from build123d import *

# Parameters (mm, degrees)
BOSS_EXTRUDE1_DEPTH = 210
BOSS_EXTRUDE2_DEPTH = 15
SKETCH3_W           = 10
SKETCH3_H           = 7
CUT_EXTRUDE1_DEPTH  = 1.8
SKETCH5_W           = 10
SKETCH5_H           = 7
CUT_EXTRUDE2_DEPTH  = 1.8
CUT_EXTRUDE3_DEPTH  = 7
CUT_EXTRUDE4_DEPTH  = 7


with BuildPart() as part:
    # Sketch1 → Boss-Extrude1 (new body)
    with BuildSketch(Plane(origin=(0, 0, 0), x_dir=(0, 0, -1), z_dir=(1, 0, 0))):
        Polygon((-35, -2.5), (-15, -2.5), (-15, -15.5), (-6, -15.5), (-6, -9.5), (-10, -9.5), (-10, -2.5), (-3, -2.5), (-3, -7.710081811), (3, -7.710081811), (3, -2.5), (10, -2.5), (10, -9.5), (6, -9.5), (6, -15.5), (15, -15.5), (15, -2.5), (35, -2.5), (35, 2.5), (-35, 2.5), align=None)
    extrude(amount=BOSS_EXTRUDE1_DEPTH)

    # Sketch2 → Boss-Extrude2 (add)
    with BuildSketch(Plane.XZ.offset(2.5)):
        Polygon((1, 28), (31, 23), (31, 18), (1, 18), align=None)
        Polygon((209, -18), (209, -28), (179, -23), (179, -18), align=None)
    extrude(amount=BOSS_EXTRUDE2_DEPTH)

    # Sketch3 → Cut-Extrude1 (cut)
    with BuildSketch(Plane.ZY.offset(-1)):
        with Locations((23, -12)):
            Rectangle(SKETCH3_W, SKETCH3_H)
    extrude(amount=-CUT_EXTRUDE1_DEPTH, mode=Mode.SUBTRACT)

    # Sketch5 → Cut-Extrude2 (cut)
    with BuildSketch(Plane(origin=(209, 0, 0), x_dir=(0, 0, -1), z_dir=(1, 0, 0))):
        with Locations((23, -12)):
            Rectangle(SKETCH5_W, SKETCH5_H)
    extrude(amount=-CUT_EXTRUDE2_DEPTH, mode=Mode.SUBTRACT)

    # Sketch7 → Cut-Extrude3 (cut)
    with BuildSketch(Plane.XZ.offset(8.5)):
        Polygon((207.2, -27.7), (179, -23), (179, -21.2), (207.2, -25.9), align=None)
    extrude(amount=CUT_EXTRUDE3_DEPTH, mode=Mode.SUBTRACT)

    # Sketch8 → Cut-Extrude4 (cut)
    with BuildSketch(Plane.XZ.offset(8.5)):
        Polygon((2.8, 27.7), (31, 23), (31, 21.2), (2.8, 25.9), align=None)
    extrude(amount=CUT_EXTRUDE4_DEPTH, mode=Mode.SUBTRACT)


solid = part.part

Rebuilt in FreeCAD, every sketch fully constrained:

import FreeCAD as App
import Part
import Sketcher

doc = App.newDocument("Part")
body = doc.addObject("PartDesign::Body", "Body")

# Sketch on YZ plane
sketch1 = body.newObject("Sketcher::SketchObject", "Sketch")
sketch1.AttachmentSupport = (doc.getObject("YZ_Plane"), [""])
sketch1.MapMode = "FlatFace"
sketch1.addGeometry([
    Part.LineSegment(App.Vector(-2.5, 35, 0), App.Vector(-2.5, 15, 0)),  # 0
    Part.LineSegment(App.Vector(-2.5, 15, 0), App.Vector(-15.5, 15, 0)),  # 1
    Part.LineSegment(App.Vector(-15.5, 15, 0), App.Vector(-15.5, 6, 0)),  # 2
    Part.LineSegment(App.Vector(-15.5, 6, 0), App.Vector(-9.5, 6, 0)),  # 3
    Part.LineSegment(App.Vector(-9.5, 6, 0), App.Vector(-9.5, 10, 0)),  # 4
    Part.LineSegment(App.Vector(-9.5, 10, 0), App.Vector(-2.5, 10, 0)),  # 5
    Part.LineSegment(App.Vector(-2.5, 10, 0), App.Vector(-2.5, 3, 0)),  # 6
    Part.LineSegment(App.Vector(-2.5, 3, 0), App.Vector(-7.7, 3, 0)),  # 7
    Part.LineSegment(App.Vector(-7.7, 3, 0), App.Vector(-7.7, -3, 0)),  # 8
    Part.LineSegment(App.Vector(-7.7, -3, 0), App.Vector(-2.5, -3, 0)),  # 9
    Part.LineSegment(App.Vector(-2.5, -3, 0), App.Vector(-2.5, -10, 0)),  # 10
    Part.LineSegment(App.Vector(-2.5, -10, 0), App.Vector(-9.5, -10, 0)),  # 11
    Part.LineSegment(App.Vector(-9.5, -10, 0), App.Vector(-9.5, -6, 0)),  # 12
    Part.LineSegment(App.Vector(-9.5, -6, 0), App.Vector(-15.5, -6, 0)),  # 13
    Part.LineSegment(App.Vector(-15.5, -6, 0), App.Vector(-15.5, -15, 0)),  # 14
    Part.LineSegment(App.Vector(-15.5, -15, 0), App.Vector(-2.5, -15, 0)),  # 15
    Part.LineSegment(App.Vector(-2.5, -15, 0), App.Vector(-2.5, -35, 0)),  # 16
    Part.LineSegment(App.Vector(-2.5, -35, 0), App.Vector(2.5, -35, 0)),  # 17
    Part.LineSegment(App.Vector(2.5, -35, 0), App.Vector(2.5, 35, 0)),  # 18
    Part.LineSegment(App.Vector(2.5, 35, 0), App.Vector(-2.5, 35, 0)),  # 19
], False)
sketch1.addConstraint([
    Sketcher.Constraint("Coincident", 0, 2, 1, 1),
    Sketcher.Constraint("Coincident", 1, 2, 2, 1),
    Sketcher.Constraint("Coincident", 2, 2, 3, 1),
    Sketcher.Constraint("Coincident", 3, 2, 4, 1),
    Sketcher.Constraint("Coincident", 4, 2, 5, 1),
    Sketcher.Constraint("Coincident", 5, 2, 6, 1),
    Sketcher.Constraint("Coincident", 6, 2, 7, 1),
    Sketcher.Constraint("Coincident", 7, 2, 8, 1),
    Sketcher.Constraint("Coincident", 8, 2, 9, 1),
    Sketcher.Constraint("Coincident", 9, 2, 10, 1),
    Sketcher.Constraint("Coincident", 10, 2, 11, 1),
    Sketcher.Constraint("Coincident", 11, 2, 12, 1),
    Sketcher.Constraint("Coincident", 12, 2, 13, 1),
    Sketcher.Constraint("Coincident", 13, 2, 14, 1),
    Sketcher.Constraint("Coincident", 14, 2, 15, 1),
    Sketcher.Constraint("Coincident", 15, 2, 16, 1),
    Sketcher.Constraint("Coincident", 16, 2, 17, 1),
    Sketcher.Constraint("Coincident", 17, 2, 18, 1),
    Sketcher.Constraint("Coincident", 18, 2, 19, 1),
    Sketcher.Constraint("Coincident", 19, 2, 0, 1),
    Sketcher.Constraint("Vertical", 0),
    Sketcher.Constraint("Horizontal", 1),
    Sketcher.Constraint("Vertical", 2),
    Sketcher.Constraint("Horizontal", 3),
    Sketcher.Constraint("Vertical", 4),
    Sketcher.Constraint("Horizontal", 5),
    Sketcher.Constraint("Vertical", 6),
    Sketcher.Constraint("Horizontal", 7),
    Sketcher.Constraint("Vertical", 8),
    Sketcher.Constraint("Horizontal", 9),
    Sketcher.Constraint("Vertical", 10),
    Sketcher.Constraint("Horizontal", 11),
    Sketcher.Constraint("Vertical", 12),
    Sketcher.Constraint("Horizontal", 13),
    Sketcher.Constraint("Vertical", 14),
    Sketcher.Constraint("Horizontal", 15),
    Sketcher.Constraint("Vertical", 16),
    Sketcher.Constraint("Horizontal", 17),
    Sketcher.Constraint("Vertical", 18),
    Sketcher.Constraint("Horizontal", 19),
    Sketcher.Constraint("Symmetric", 16, 2, 18, 2, -1, 1),
    Sketcher.Constraint("Symmetric", 6, 2, 9, 2, -1),
    Sketcher.Constraint("Symmetric", 4, 2, 11, 2, -1),
    Sketcher.Constraint("Symmetric", 2, 2, 13, 2, -1),
    Sketcher.Constraint("Symmetric", 0, 2, 15, 2, -1),
    Sketcher.Constraint("Vertical", 0, 2, 5, 2),
    Sketcher.Constraint("Equal", 11, 6),
    Sketcher.Constraint("Equal", 13, 8),
    Sketcher.Constraint("DistanceX", 1, 2, 1, 1, 13.0),
    Sketcher.Constraint("DistanceX", 3, 1, 3, 2, 6.0),
    Sketcher.Constraint("DistanceX", 17, 1, 17, 2, 5.0),
    Sketcher.Constraint("DistanceY", 0, 2, 0, 1, 20.0),
    Sketcher.Constraint("DistanceY", 2, 2, 2, 1, 9.0),
    Sketcher.Constraint("DistanceY", 4, 1, 4, 2, 4.0),
    Sketcher.Constraint("DistanceX", 7, 2, 7, 1, 5.210082),
])
pad1 = body.newObject("PartDesign::Pad", "Pad")
pad1.Profile = sketch1
pad1.Length = 210

# Sketch on XZ plane
sketch2 = body.newObject("Sketcher::SketchObject", "Sketch001")
sketch2.AttachmentSupport = (doc.getObject("XZ_Plane"), [""])
sketch2.MapMode = "FlatFace"
sketch2.AttachmentOffset = App.Placement(App.Vector(0, 0, 2.5), App.Rotation())
sketch2.addGeometry([
    Part.LineSegment(App.Vector(31, 23, 0), App.Vector(1, 28, 0)),  # 0
    Part.LineSegment(App.Vector(1, 28, 0), App.Vector(1, 18, 0)),  # 1
    Part.LineSegment(App.Vector(1, 18, 0), App.Vector(31, 18, 0)),  # 2
    Part.LineSegment(App.Vector(31, 18, 0), App.Vector(31, 23, 0)),  # 3
    Part.LineSegment(App.Vector(209, -28, 0), App.Vector(209, -18, 0)),  # 4
    Part.LineSegment(App.Vector(209, -18, 0), App.Vector(179, -18, 0)),  # 5
    Part.LineSegment(App.Vector(179, -18, 0), App.Vector(179, -23, 0)),  # 6
    Part.LineSegment(App.Vector(179, -23, 0), App.Vector(209, -28, 0)),  # 7
], False)
sketch2.addConstraint([
    Sketcher.Constraint("Coincident", 0, 2, 1, 1),
    Sketcher.Constraint("Coincident", 1, 2, 2, 1),
    Sketcher.Constraint("Coincident", 2, 2, 3, 1),
    Sketcher.Constraint("Coincident", 3, 2, 0, 1),
    Sketcher.Constraint("Coincident", 4, 2, 5, 1),
    Sketcher.Constraint("Coincident", 5, 2, 6, 1),
    Sketcher.Constraint("Coincident", 6, 2, 7, 1),
    Sketcher.Constraint("Coincident", 7, 2, 4, 1),
    Sketcher.Constraint("Vertical", 1),
    Sketcher.Constraint("Horizontal", 2),
    Sketcher.Constraint("Vertical", 3),
    Sketcher.Constraint("Vertical", 4),
    Sketcher.Constraint("Horizontal", 5),
    Sketcher.Constraint("Vertical", 6),
    Sketcher.Constraint("Parallel", 0, 7),
    Sketcher.Constraint("Equal", 2, 5),
    Sketcher.Constraint("Equal", 1, 4),
    Sketcher.Constraint("DistanceX", 2, 1, 2, 2, 30.0),
    Sketcher.Constraint("DistanceY", 1, 2, 1, 1, 10.0),
    Sketcher.Constraint("DistanceY", 3, 1, 3, 2, 5.0),
    Sketcher.Constraint("DistanceX", -1, 1, 0, 2, 1.0),
    Sketcher.Constraint("DistanceY", -1, 1, 0, 2, 28.0),
    Sketcher.Constraint("DistanceX", -1, 1, 4, 2, 209.0),
    Sketcher.Constraint("DistanceY", 4, 2, -1, 1, 18.0),
])
pad2 = body.newObject("PartDesign::Pad", "Pad001")
pad2.Profile = sketch2
pad2.Length = 15

# Sketch on YZ plane
sketch3 = body.newObject("Sketcher::SketchObject", "Sketch002")
sketch3.AttachmentSupport = (doc.getObject("YZ_Plane"), [""])
sketch3.MapMode = "FlatFace"
sketch3.AttachmentOffset = App.Placement(App.Vector(0, 0, 1), App.Rotation())
sketch3.addGeometry([
    Part.LineSegment(App.Vector(-8, 18, 0), App.Vector(-16, 18, 0)),
    Part.LineSegment(App.Vector(-16, 18, 0), App.Vector(-16, 28, 0)),
    Part.LineSegment(App.Vector(-16, 28, 0), App.Vector(-8, 28, 0)),
    Part.LineSegment(App.Vector(-8, 28, 0), App.Vector(-8, 18, 0)),
], False)
sketch3.addConstraint([
    Sketcher.Constraint("Coincident", 0, 2, 1, 1),
    Sketcher.Constraint("Coincident", 1, 2, 2, 1),
    Sketcher.Constraint("Coincident", 2, 2, 3, 1),
    Sketcher.Constraint("Coincident", 3, 2, 0, 1),
    Sketcher.Constraint("Horizontal", 0),
    Sketcher.Constraint("Vertical", 1),
    Sketcher.Constraint("Horizontal", 2),
    Sketcher.Constraint("Vertical", 3),
    Sketcher.Constraint("DistanceX", 0, 2, 0, 1, 7.0),
    Sketcher.Constraint("DistanceY", 1, 1, 1, 2, 10.0),
    Sketcher.Constraint("DistanceY", -1, 1, 0, 2, 18.0),
    Sketcher.Constraint("DistanceX", 0, 2, -1, 1, 15.5),
])
pocket1 = body.newObject("PartDesign::Pocket", "Pocket")
pocket1.Profile = sketch3
pocket1.Length = 1.8
pocket1.Reversed = True

# Sketch on YZ plane
sketch4 = body.newObject("Sketcher::SketchObject", "Sketch003")
sketch4.AttachmentSupport = (doc.getObject("YZ_Plane"), [""])
sketch4.MapMode = "FlatFace"
sketch4.AttachmentOffset = App.Placement(App.Vector(0, 0, 209), App.Rotation())
sketch4.addGeometry([
    Part.LineSegment(App.Vector(-8, -18, 0), App.Vector(-16, -18, 0)),
    Part.LineSegment(App.Vector(-16, -18, 0), App.Vector(-16, -28, 0)),
    Part.LineSegment(App.Vector(-16, -28, 0), App.Vector(-8, -28, 0)),
    Part.LineSegment(App.Vector(-8, -28, 0), App.Vector(-8, -18, 0)),
], False)
sketch4.addConstraint([
    Sketcher.Constraint("Coincident", 0, 2, 1, 1),
    Sketcher.Constraint("Coincident", 1, 2, 2, 1),
    Sketcher.Constraint("Coincident", 2, 2, 3, 1),
    Sketcher.Constraint("Coincident", 3, 2, 0, 1),
    Sketcher.Constraint("Horizontal", 0),
    Sketcher.Constraint("Vertical", 1),
    Sketcher.Constraint("Horizontal", 2),
    Sketcher.Constraint("Vertical", 3),
    Sketcher.Constraint("DistanceX", 0, 2, 0, 1, 7.0),
    Sketcher.Constraint("DistanceY", 1, 2, 1, 1, 10.0),
    Sketcher.Constraint("DistanceY", 0, 2, -1, 1, 18.0),
    Sketcher.Constraint("DistanceX", 0, 2, -1, 1, 15.5),
])
pocket2 = body.newObject("PartDesign::Pocket", "Pocket001")
pocket2.Profile = sketch4
pocket2.Length = 1.8

# Sketch on XZ plane
sketch5 = body.newObject("Sketcher::SketchObject", "Sketch004")
sketch5.AttachmentSupport = (doc.getObject("XZ_Plane"), [""])
sketch5.MapMode = "FlatFace"
sketch5.AttachmentOffset = App.Placement(App.Vector(0, 0, 8.5), App.Rotation())
sketch5.addGeometry([
    Part.LineSegment(App.Vector(179, -23, 0), App.Vector(207.2, -27.7, 0)),
    Part.LineSegment(App.Vector(207.2, -27.7, 0), App.Vector(207.2, -25.9, 0)),
    Part.LineSegment(App.Vector(207.2, -25.9, 0), App.Vector(179, -21.2, 0)),
    Part.LineSegment(App.Vector(179, -21.2, 0), App.Vector(179, -23, 0)),
], False)
sketch5.addConstraint([
    Sketcher.Constraint("Coincident", 0, 2, 1, 1),
    Sketcher.Constraint("Coincident", 1, 2, 2, 1),
    Sketcher.Constraint("Coincident", 2, 2, 3, 1),
    Sketcher.Constraint("Coincident", 3, 2, 0, 1),
    Sketcher.Constraint("Vertical", 1),
    Sketcher.Constraint("Vertical", 3),
    Sketcher.Constraint("Parallel", 0, 2),
    Sketcher.Constraint("DistanceY", 1, 1, 1, 2, 1.8),
    Sketcher.Constraint("DistanceX", -1, 1, 2, 2, 179.0),
    Sketcher.Constraint("DistanceY", 3, 2, -1, 1, 23.0),
    Sketcher.Constraint("DistanceX", -1, 1, 0, 2, 207.2),
    Sketcher.Constraint("DistanceY", 0, 2, -1, 1, 27.7),
])
pocket3 = body.newObject("PartDesign::Pocket", "Pocket002")
pocket3.Profile = sketch5
pocket3.Length = 7
pocket3.Reversed = True

# Sketch on XZ plane
sketch6 = body.newObject("Sketcher::SketchObject", "Sketch005")
sketch6.AttachmentSupport = (doc.getObject("XZ_Plane"), [""])
sketch6.MapMode = "FlatFace"
sketch6.AttachmentOffset = App.Placement(App.Vector(0, 0, 8.5), App.Rotation())
sketch6.addGeometry([
    Part.LineSegment(App.Vector(31, 23, 0), App.Vector(2.8, 27.7, 0)),
    Part.LineSegment(App.Vector(2.8, 27.7, 0), App.Vector(2.8, 25.9, 0)),
    Part.LineSegment(App.Vector(2.8, 25.9, 0), App.Vector(31, 21.2, 0)),
    Part.LineSegment(App.Vector(31, 21.2, 0), App.Vector(31, 23, 0)),
], False)
sketch6.addConstraint([
    Sketcher.Constraint("Coincident", 0, 2, 1, 1),
    Sketcher.Constraint("Coincident", 1, 2, 2, 1),
    Sketcher.Constraint("Coincident", 2, 2, 3, 1),
    Sketcher.Constraint("Coincident", 3, 2, 0, 1),
    Sketcher.Constraint("Vertical", 1),
    Sketcher.Constraint("Vertical", 3),
    Sketcher.Constraint("Parallel", 0, 2),
    Sketcher.Constraint("DistanceY", 1, 2, 1, 1, 1.8),
    Sketcher.Constraint("DistanceX", -1, 1, 2, 2, 31.0),
    Sketcher.Constraint("DistanceY", -1, 1, 3, 2, 23.0),
    Sketcher.Constraint("DistanceX", -1, 1, 0, 2, 2.8),
    Sketcher.Constraint("DistanceY", -1, 1, 0, 2, 27.7),
])
pocket4 = body.newObject("PartDesign::Pocket", "Pocket003")
pocket4.Profile = sketch6
pocket4.Length = 7
pocket4.Reversed = True

doc.recompute()
